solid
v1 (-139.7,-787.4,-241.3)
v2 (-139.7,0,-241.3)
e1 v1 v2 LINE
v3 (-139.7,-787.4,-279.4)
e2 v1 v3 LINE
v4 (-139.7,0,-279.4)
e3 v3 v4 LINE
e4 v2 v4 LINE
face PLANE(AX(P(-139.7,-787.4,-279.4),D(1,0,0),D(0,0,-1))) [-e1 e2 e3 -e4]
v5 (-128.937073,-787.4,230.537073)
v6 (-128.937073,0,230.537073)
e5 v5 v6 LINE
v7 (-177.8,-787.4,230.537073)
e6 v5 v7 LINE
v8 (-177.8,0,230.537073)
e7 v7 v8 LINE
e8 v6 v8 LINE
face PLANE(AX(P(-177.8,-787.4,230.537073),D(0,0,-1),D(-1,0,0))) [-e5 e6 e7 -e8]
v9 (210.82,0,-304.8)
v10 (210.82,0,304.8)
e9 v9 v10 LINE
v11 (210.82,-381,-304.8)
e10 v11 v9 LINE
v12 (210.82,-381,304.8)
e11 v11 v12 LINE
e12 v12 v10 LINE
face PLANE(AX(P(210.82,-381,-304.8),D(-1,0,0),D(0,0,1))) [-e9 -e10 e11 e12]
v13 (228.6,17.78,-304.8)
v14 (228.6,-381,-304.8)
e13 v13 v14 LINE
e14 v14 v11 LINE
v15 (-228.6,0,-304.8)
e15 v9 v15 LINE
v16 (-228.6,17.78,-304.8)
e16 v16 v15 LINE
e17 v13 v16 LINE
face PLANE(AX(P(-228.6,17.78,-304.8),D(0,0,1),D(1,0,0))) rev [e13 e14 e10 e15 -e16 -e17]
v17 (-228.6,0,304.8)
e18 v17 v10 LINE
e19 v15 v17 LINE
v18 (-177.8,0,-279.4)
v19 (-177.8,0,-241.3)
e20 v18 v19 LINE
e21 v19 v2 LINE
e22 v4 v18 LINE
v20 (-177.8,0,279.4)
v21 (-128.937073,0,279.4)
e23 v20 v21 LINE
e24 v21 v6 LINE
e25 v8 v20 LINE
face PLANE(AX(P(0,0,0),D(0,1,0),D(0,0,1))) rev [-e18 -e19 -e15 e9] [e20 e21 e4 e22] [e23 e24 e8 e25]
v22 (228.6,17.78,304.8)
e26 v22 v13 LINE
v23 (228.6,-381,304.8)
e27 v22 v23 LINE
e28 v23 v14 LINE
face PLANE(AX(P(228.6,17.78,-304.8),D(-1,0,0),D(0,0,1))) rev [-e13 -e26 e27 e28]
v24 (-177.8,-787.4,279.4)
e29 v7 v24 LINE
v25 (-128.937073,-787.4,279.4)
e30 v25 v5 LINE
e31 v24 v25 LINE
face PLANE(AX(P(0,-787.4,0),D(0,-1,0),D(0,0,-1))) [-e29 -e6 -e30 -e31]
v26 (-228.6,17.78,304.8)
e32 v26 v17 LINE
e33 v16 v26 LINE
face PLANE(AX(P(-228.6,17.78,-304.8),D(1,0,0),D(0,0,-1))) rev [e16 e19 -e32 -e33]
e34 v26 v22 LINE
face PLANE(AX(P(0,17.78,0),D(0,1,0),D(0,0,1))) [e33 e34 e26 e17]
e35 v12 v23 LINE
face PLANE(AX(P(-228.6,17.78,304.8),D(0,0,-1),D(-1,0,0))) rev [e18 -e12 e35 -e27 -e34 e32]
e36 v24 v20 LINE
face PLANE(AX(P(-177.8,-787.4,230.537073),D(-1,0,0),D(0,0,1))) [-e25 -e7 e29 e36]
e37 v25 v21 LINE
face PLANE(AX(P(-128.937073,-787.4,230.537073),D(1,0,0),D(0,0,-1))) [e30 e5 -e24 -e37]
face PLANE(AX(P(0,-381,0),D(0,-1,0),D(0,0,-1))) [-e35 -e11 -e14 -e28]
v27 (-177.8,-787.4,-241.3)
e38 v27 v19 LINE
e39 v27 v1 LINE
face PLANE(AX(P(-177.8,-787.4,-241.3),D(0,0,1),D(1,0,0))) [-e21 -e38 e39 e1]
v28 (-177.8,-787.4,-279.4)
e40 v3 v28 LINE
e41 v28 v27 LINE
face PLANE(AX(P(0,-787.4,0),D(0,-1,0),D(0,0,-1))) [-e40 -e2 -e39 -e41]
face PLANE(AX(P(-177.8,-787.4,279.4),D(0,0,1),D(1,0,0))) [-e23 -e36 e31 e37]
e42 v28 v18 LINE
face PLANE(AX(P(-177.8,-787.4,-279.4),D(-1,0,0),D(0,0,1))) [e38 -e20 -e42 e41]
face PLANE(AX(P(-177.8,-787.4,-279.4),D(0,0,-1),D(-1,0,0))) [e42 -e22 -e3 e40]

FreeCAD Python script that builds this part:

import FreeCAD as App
import Part
import Sketcher

V = App.Vector
Q = App.Units.Quantity


def add_polygon(sketch, points):
    """Adds a closed chain of lines whose ends are joined by coincident constraints."""
    first, n = sketch.GeometryCount, len(points)
    for a, b in zip(points, points[1:] + points[:1]):
        sketch.addGeometry(Part.LineSegment(App.Vector(*a, 0), App.Vector(*b, 0)), False)
    for i in range(n):
        sketch.addConstraint(Sketcher.Constraint("Coincident", first + i, 2, first + (i + 1) % n, 1))

doc = App.newDocument("Part")
params = doc.addObject("Spreadsheet::Sheet", "Params")
for row, (alias, value) in enumerate([
    ("sketch1_width", "18 in"),
    ("sketch1_height", "24 in"),
    ("sketch1_width2", "1.5 in"),
    ("pad1_length", "0.7 in"),
    ("sketch2_height", "24 in"),
    ("sketch2_width", "0.7 in"),
    ("pad2_length", "15 in"),
    ("sketch3_width", "1.5 in"),
    ("pad3_length", "0.7 in"),
    ("pad3_length2", "31 in"),
], start=1):
    params.set(f"A{row}", alias)
    params.set(f"B{row}", "=" + value)
    params.setAlias(f"B{row}", alias)

body = doc.addObject("PartDesign::Body", "Body")

# Sketch on XZ plane
sketch1 = body.newObject("Sketcher::SketchObject", "Sketch")
sketch1.AttachmentSupport = (doc.getObject("XZ_Plane"), [""])
sketch1.MapMode = "FlatFace"
add_polygon(sketch1, [(-229, -305), (-229, 305), (229, 305), (229, -305)])  # lines 0-3
add_polygon(sketch1, [(-129, 279), (-178, 279), (-178, 231), (-129, 231)])  # lines 4-7
add_polygon(sketch1, [(-140, -241), (-178, -241), (-178, -279), (-140, -279)])  # lines 8-11
sketch1.addConstraint([
    Sketcher.Constraint("Vertical", 0),
    Sketcher.Constraint("Horizontal", 1),
    Sketcher.Constraint("Vertical", 2),
    Sketcher.Constraint("Horizontal", 3),
    Sketcher.Constraint("Horizontal", 4),
    Sketcher.Constraint("Vertical", 5),
    Sketcher.Constraint("Horizontal", 6),
    Sketcher.Constraint("Vertical", 7),
    Sketcher.Constraint("Horizontal", 8),
    Sketcher.Constraint("Vertical", 9),
    Sketcher.Constraint("Horizontal", 10),
    Sketcher.Constraint("Vertical", 11),
    Sketcher.Constraint("Symmetric", 0, 2, 2, 2, -1, 1),
    Sketcher.Constraint("Symmetric", 4, 2, 9, 2, -1),
    Sketcher.Constraint("Equal", 6, 5),
    Sketcher.Constraint("Equal", 10, 9),
    Sketcher.Constraint("DistanceX", 1, 1, 1, 2, Q("18 in")),
    Sketcher.Constraint("DistanceY", 0, 1, 0, 2, Q("24 in")),
    Sketcher.Constraint("DistanceX", 8, 2, 8, 1, Q("1.5 in")),
    Sketcher.Constraint("DistanceX", 4, 2, -1, 1, Q("7 in")),
    Sketcher.Constraint("DistanceY", -1, 1, 4, 2, Q("11 in")),
    Sketcher.Constraint("DistanceX", 4, 2, 4, 1, Q("48.862927 mm")),
])
sketch1.setExpression("Constraints[28]", "Params.sketch1_width")
sketch1.setExpression("Constraints[29]", "Params.sketch1_height")
sketch1.setExpression("Constraints[30]", "Params.sketch1_width2")
pad1 = body.newObject("PartDesign::Pad", "Pad")
pad1.Profile = sketch1
pad1.setExpression("Length", "Params.pad1_length")
pad1.Reversed = True

# Sketch on XZ plane
sketch2 = body.newObject("Sketcher::SketchObject", "Sketch001")
sketch2.AttachmentSupport = (doc.getObject("XZ_Plane"), [""])
sketch2.MapMode = "FlatFace"
add_polygon(sketch2, [(211, -305), (211, 305), (229, 305), (229, -305)])  # lines 0-3
sketch2.addConstraint([
    Sketcher.Constraint("Vertical", 0),
    Sketcher.Constraint("Horizontal", 1),
    Sketcher.Constraint("Vertical", 2),
    Sketcher.Constraint("Horizontal", 3),
    Sketcher.Constraint("DistanceY", 0, 1, 0, 2, Q("24 in")),
    Sketcher.Constraint("DistanceX", 1, 1, 1, 2, Q("0.7 in")),
    Sketcher.Constraint("DistanceY", -1, 1, 0, 2, Q("12 in")),
    Sketcher.Constraint("DistanceX", -1, 1, 1, 2, Q("9 in")),
])
sketch2.setExpression("Constraints[8]", "Params.sketch2_height")
sketch2.setExpression("Constraints[9]", "Params.sketch2_width")
pad2 = body.newObject("PartDesign::Pad", "Pad001")
pad2.Profile = sketch2
pad2.setExpression("Length", "Params.pad2_length")

# Sketch on XZ plane
sketch3 = body.newObject("Sketcher::SketchObject", "Sketch002")
sketch3.AttachmentSupport = (doc.getObject("XZ_Plane"), [""])
sketch3.MapMode = "FlatFace"
add_polygon(sketch3, [(-178, -279), (-178, -241), (-140, -241), (-140, -279)])  # lines 0-3
add_polygon(sketch3, [(-178, 231), (-178, 279), (-129, 279), (-129, 231)])  # lines 4-7
sketch3.addConstraint([
    Sketcher.Constraint("Vertical", 0),
    Sketcher.Constraint("Horizontal", 1),
    Sketcher.Constraint("Vertical", 2),
    Sketcher.Constraint("Horizontal", 3),
    Sketcher.Constraint("Vertical", 4),
    Sketcher.Constraint("Horizontal", 5),
    Sketcher.Constraint("Vertical", 6),
    Sketcher.Constraint("Horizontal", 7),
    Sketcher.Constraint("Symmetric", 3, 2, 4, 2, -1),
    Sketcher.Constraint("Equal", 3, 0),
    Sketcher.Constraint("Equal", 7, 4),
    Sketcher.Constraint("DistanceX", 1, 1, 1, 2, Q("1.5 in")),
    Sketcher.Constraint("DistanceX", 0, 2, -1, 1, Q("7 in")),
    Sketcher.Constraint("DistanceY", 2, 2, -1, 1, Q("11 in")),
    Sketcher.Constraint("DistanceX", 5, 1, 5, 2, Q("48.862927 mm")),
])
sketch3.setExpression("Constraints[19]", "Params.sketch3_width")
pad3 = body.newObject("PartDesign::Pad", "Pad002")
pad3.Profile = sketch3
pad3.Type = "TwoLengths"
pad3.setExpression("Length", "Params.pad3_length")
pad3.setExpression("Length2", "Params.pad3_length2")
pad3.Reversed = True

doc.recompute()
